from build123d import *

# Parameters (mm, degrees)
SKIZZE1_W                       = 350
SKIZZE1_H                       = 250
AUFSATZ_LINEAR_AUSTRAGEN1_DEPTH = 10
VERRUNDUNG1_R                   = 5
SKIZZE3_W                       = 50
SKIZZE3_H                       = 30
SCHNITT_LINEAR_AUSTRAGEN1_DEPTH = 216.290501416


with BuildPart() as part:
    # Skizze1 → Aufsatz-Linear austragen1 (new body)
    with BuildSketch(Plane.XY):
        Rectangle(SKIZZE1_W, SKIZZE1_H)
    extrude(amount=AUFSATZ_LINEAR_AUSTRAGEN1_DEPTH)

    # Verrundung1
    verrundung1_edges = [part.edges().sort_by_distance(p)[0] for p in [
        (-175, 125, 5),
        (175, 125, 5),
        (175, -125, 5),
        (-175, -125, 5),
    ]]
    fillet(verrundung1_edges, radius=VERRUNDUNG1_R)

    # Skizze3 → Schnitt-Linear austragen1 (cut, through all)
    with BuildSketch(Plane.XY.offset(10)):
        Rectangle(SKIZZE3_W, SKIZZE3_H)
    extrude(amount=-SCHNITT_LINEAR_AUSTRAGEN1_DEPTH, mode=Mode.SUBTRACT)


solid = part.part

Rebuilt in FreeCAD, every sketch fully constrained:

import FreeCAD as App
import Part
import Sketcher
Q = App.Units.Quantity


def edges_at(feature, points):
    """Names of the edges that pass closest to the given points."""
    edges = feature.Shape.Edges
    near = lambda p: min(range(len(edges)), key=lambda i: edges[i].distToShape(Part.Vertex(*p))[0])
    return sorted({f"Edge{near(p) + 1}" for p in points})


def add_polygon(sketch, points):
    """Adds a closed chain of lines whose ends are joined by coincident constraints."""
    first, n = sketch.GeometryCount, len(points)
    for a, b in zip(points, points[1:] + points[:1]):
        sketch.addGeometry(Part.LineSegment(App.Vector(*a, 0), App.Vector(*b, 0)), False)
    for i in range(n):
        sketch.addConstraint(Sketcher.Constraint("Coincident", first + i, 2, first + (i + 1) % n, 1))

doc = App.newDocument("Part")
body = doc.addObject("PartDesign::Body", "Body")

sketch1 = body.newObject("Sketcher::SketchObject", "Sketch")
sketch1.AttachmentSupport = (doc.getObject("XY_Plane"), [""])
sketch1.MapMode = "FlatFace"
add_polygon(sketch1, [(-175, 125), (-175, -125), (175, -125), (175, 125)])
sketch1.addConstraint([
    Sketcher.Constraint("Vertical", 0),
    Sketcher.Constraint("Horizontal", 1),
    Sketcher.Constraint("Vertical", 2),
    Sketcher.Constraint("Horizontal", 3),
    Sketcher.Constraint("Symmetric", 0, 2, 2, 2, -1, 1),
    Sketcher.Constraint("DistanceX", 1, 1, 1, 2, Q("350 mm")),
    Sketcher.Constraint("DistanceY", 0, 2, 0, 1, Q("250 mm")),
])
pad1 = body.newObject("PartDesign::Pad", "Pad")
pad1.Profile = sketch1
pad1.Length = 10
doc.recompute()

fillet = body.newObject("PartDesign::Fillet", "Fillet")
fillet.Base = (pad1, edges_at(pad1, [
    (-175, 125, 5),
    (175, 125, 5),
    (175, -125, 5),
    (-175, -125, 5),
]))
fillet.Radius = 5

sketch2 = body.newObject("Sketcher::SketchObject", "Sketch001")
sketch2.AttachmentSupport = (doc.getObject("XY_Plane"), [""])
sketch2.MapMode = "FlatFace"
sketch2.AttachmentOffset = App.Placement(App.Vector(0, 0, 10), App.Rotation())
add_polygon(sketch2, [(-25, 15), (-25, -15), (25, -15), (25, 15)])
sketch2.addConstraint([
    Sketcher.Constraint("Vertical", 0),
    Sketcher.Constraint("Horizontal", 1),
    Sketcher.Constraint("Vertical", 2),
    Sketcher.Constraint("Horizontal", 3),
    Sketcher.Constraint("Symmetric", 0, 2, 2, 2, -1, 1),
    Sketcher.Constraint("DistanceX", 1, 1, 1, 2, Q("50 mm")),
    Sketcher.Constraint("DistanceY", 0, 2, 0, 1, Q("30 mm")),
])
pocket1 = body.newObject("PartDesign::Pocket", "Pocket")
pocket1.Profile = sketch2
pocket1.Type = "ThroughAll"

doc.recompute()
